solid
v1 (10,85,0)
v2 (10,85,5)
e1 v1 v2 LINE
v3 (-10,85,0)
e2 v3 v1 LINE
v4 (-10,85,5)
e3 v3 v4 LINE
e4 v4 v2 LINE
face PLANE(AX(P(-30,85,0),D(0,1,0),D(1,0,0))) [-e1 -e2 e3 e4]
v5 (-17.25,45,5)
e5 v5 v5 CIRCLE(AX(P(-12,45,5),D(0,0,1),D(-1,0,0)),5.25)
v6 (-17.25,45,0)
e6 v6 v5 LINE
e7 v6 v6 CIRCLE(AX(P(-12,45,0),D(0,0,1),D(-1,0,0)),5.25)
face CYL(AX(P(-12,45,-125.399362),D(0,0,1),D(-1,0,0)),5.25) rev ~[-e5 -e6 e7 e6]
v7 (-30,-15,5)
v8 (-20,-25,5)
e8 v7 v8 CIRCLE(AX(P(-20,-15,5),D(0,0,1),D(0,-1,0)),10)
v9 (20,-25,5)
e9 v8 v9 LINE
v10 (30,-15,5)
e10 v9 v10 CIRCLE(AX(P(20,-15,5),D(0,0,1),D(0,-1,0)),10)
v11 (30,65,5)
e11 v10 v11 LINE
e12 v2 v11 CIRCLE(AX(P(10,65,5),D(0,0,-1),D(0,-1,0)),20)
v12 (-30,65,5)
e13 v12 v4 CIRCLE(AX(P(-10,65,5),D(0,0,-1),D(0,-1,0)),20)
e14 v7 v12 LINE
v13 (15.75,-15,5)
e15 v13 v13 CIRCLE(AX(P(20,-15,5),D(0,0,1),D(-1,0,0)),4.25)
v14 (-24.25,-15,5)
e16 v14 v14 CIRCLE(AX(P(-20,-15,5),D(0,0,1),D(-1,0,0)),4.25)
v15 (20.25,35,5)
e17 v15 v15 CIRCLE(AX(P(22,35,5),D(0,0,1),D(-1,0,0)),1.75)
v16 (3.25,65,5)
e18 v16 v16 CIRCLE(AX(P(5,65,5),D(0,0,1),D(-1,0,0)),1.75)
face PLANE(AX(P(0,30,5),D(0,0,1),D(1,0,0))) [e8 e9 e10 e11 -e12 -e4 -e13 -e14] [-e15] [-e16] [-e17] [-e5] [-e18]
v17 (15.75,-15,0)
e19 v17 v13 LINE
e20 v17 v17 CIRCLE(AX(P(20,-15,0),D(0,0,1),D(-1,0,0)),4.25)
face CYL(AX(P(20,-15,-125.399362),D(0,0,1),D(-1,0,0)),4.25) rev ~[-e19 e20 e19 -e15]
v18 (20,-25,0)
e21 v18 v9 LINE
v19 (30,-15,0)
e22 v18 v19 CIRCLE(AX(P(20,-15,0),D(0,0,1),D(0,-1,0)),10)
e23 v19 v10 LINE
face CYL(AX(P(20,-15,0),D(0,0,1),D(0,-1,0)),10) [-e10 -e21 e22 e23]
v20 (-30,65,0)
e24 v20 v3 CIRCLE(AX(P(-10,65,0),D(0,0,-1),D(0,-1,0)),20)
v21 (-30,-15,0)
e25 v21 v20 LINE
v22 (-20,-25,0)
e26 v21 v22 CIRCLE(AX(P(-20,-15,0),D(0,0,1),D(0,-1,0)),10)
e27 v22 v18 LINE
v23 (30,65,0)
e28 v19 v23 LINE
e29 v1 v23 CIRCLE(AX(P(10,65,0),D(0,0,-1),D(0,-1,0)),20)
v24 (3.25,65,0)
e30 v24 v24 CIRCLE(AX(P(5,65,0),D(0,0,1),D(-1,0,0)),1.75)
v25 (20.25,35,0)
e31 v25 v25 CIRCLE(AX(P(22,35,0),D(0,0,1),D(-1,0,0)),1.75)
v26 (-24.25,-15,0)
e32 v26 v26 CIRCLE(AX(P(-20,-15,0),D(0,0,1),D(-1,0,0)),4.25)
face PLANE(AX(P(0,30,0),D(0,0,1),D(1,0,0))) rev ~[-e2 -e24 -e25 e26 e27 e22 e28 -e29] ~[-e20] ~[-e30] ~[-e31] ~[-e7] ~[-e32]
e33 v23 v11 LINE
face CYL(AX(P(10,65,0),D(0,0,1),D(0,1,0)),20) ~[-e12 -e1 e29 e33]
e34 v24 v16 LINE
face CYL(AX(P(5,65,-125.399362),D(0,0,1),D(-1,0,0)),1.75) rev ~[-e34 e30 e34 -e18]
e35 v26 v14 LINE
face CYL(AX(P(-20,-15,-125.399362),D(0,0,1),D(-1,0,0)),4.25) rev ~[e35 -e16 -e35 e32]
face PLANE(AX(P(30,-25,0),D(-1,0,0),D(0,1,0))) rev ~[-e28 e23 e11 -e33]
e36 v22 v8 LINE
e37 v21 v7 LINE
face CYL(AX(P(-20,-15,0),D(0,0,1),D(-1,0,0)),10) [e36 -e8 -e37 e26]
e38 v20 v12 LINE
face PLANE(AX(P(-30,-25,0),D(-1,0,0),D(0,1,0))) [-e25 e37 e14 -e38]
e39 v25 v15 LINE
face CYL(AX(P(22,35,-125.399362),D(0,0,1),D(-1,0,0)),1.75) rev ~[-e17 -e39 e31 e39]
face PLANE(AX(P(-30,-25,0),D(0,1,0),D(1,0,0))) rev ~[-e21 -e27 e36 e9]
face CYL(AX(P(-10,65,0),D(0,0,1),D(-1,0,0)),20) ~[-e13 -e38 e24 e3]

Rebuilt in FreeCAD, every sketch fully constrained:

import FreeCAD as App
import Part
import Sketcher
from FreeCAD import Vector


def edges_at(feature, points):
    """Names of the edges that pass closest to the given points."""
    edges = feature.Shape.Edges
    near = lambda p: min(range(len(edges)), key=lambda i: edges[i].distToShape(Part.Vertex(*p))[0])
    return sorted({f"Edge{near(p) + 1}" for p in points})


def add_polygon(sketch, points):
    """Adds a closed chain of lines whose ends are joined by coincident constraints."""
    first, n = sketch.GeometryCount, len(points)
    for a, b in zip(points, points[1:] + points[:1]):
        sketch.addGeometry(Part.LineSegment(App.Vector(*a, 0), App.Vector(*b, 0)), False)
    for i in range(n):
        sketch.addConstraint(Sketcher.Constraint("Coincident", first + i, 2, first + (i + 1) % n, 1))

doc = App.newDocument("Part")
body = doc.addObject("PartDesign::Body", "Body")

# Sketch on XY plane
sketch1 = body.newObject("Sketcher::SketchObject", "Sketch")
sketch1.AttachmentSupport = (doc.getObject("XY_Plane"), [""])
sketch1.MapMode = "FlatFace"
add_polygon(sketch1, [(-30, 85), (-30, -25), (30, -25), (30, 85)])  # lines 0-3
sketch1.addConstraint([
    Sketcher.Constraint("Vertical", 0),
    Sketcher.Constraint("Horizontal", 1),
    Sketcher.Constraint("Vertical", 2),
    Sketcher.Constraint("Horizontal", 3),
    Sketcher.Constraint("DistanceX", 1, 1, 1, 2, 60.0),
    Sketcher.Constraint("DistanceY", 0, 2, 0, 1, 110.0),
    Sketcher.Constraint("DistanceX", 0, 2, -1, 1, 30.0),
    Sketcher.Constraint("DistanceY", 0, 2, -1, 1, 25.0),
])
pad1 = body.newObject("PartDesign::Pad", "Pad")
pad1.Profile = sketch1
pad1.Length = 5

# Sketch on XY plane
sketch2 = body.newObject("Sketcher::SketchObject", "Sketch001")
sketch2.AttachmentSupport = (doc.getObject("XY_Plane"), [""])
sketch2.MapMode = "FlatFace"
sketch2.addGeometry([
    Part.Circle(Vector(-20, -15, 0), Vector(0, 0, 1), 4.25),
    Part.Circle(Vector(20, -15, 0), Vector(0, 0, 1), 4.25),
], False)
sketch2.addConstraint([
    Sketcher.Constraint("Equal", 0, 1),
    Sketcher.Constraint("Symmetric", 0, 3, 1, 3, -2),
    Sketcher.Constraint("Diameter", 0, 8.5),
    Sketcher.Constraint("DistanceX", 0, 3, -1, 1, 20.0),
    Sketcher.Constraint("DistanceY", 0, 3, -1, 1, 15.0),
])
doc.recompute()
hole = body.newObject("PartDesign::Hole", "Hole")
hole.Profile = sketch2
hole.ThreadType = "None"
hole.Diameter = 8.5
hole.DepthType = "ThroughAll"
hole.Reversed = True

# Sketch on XY plane
sketch3 = body.newObject("Sketcher::SketchObject", "Sketch002")
sketch3.AttachmentSupport = (doc.getObject("XY_Plane"), [""])
sketch3.MapMode = "FlatFace"
sketch3.addGeometry(Part.Circle(Vector(-12, 45, 0), Vector(0, 0, 1), 5.25), False)
sketch3.addConstraint([
    Sketcher.Constraint("Diameter", 0, 10.5),
    Sketcher.Constraint("DistanceX", 0, 3, -1, 1, 12.0),
    Sketcher.Constraint("DistanceY", -1, 1, 0, 3, 45.0),
])
doc.recompute()
hole2 = body.newObject("PartDesign::Hole", "Hole001")
hole2.Profile = sketch3
hole2.ThreadType = "None"
hole2.Diameter = 10.5
hole2.DepthType = "ThroughAll"
hole2.Reversed = True

# Sketch on XY plane
sketch4 = body.newObject("Sketcher::SketchObject", "Sketch003")
sketch4.AttachmentSupport = (doc.getObject("XY_Plane"), [""])
sketch4.MapMode = "FlatFace"
sketch4.addGeometry([
    Part.Circle(Vector(5, 65, 0), Vector(0, 0, 1), 1.75),
    Part.Circle(Vector(22, 35, 0), Vector(0, 0, 1), 1.75),
], False)
sketch4.addConstraint([
    Sketcher.Constraint("Equal", 0, 1),
    Sketcher.Constraint("Diameter", 0, 3.5),
    Sketcher.Constraint("DistanceX", -1, 1, 0, 3, 5.0),
    Sketcher.Constraint("DistanceY", -1, 1, 0, 3, 65.0),
    Sketcher.Constraint("DistanceX", -1, 1, 1, 3, 22.0),
    Sketcher.Constraint("DistanceY", -1, 1, 1, 3, 35.0),
])
doc.recompute()
hole3 = body.newObject("PartDesign::Hole", "Hole002")
hole3.Profile = sketch4
hole3.ThreadType = "None"
hole3.Diameter = 3.5
hole3.DepthType = "ThroughAll"
hole3.Reversed = True
doc.recompute()

fillet = body.newObject("PartDesign::Fillet", "Fillet")
fillet.Base = (hole3, edges_at(hole3, [(-30, -25, 2.5), (30, -25, 2.5)]))
fillet.Radius = 10
doc.recompute()

fillet2 = body.newObject("PartDesign::Fillet", "Fillet001")
fillet2.Base = (fillet, edges_at(fillet, [(-30, 85, 2.5), (30, 85, 2.5)]))
fillet2.Radius = 20

doc.recompute()
